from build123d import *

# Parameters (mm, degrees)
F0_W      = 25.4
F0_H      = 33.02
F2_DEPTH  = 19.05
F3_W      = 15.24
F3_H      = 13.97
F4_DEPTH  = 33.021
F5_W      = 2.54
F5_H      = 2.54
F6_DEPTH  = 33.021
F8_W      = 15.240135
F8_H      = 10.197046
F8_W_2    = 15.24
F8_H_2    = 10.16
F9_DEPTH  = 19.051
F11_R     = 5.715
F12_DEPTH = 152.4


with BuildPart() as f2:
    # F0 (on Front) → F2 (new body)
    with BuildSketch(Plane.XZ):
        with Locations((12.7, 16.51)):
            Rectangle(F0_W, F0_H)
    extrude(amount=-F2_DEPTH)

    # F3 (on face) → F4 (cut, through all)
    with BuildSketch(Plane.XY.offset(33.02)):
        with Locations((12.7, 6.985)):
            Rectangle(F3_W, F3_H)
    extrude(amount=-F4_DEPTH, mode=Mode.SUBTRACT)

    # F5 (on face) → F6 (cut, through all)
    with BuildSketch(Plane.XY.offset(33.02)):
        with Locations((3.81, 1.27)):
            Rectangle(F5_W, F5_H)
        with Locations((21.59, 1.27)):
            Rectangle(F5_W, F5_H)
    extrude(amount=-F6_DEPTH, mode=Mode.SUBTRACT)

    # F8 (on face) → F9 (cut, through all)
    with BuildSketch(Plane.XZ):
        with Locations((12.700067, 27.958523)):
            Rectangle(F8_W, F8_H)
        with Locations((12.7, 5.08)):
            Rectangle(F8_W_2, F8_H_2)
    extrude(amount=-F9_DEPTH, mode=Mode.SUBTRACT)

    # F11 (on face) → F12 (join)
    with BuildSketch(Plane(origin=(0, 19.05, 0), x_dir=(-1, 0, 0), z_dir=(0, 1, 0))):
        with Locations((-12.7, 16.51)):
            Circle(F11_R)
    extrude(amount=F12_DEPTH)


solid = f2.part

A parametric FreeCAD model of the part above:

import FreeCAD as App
import Part
import Sketcher
Q = App.Units.Quantity

doc = App.newDocument("Part")
body = doc.addObject("PartDesign::Body", "Body")

# Sketch on XZ plane
sketch1 = body.newObject("Sketcher::SketchObject", "Sketch")
sketch1.AttachmentSupport = (doc.getObject("XZ_Plane"), [""])
sketch1.MapMode = "FlatFace"
sketch1.addGeometry(Part.LineSegment(App.Vector(0, 33.02, 0), App.Vector(0, 0, 0)), False)
sketch1.addGeometry(Part.LineSegment(App.Vector(0, 0, 0), App.Vector(25.4, 0, 0)), False)
sketch1.addGeometry(Part.LineSegment(App.Vector(25.4, 0, 0), App.Vector(25.4, 33.02, 0)), False)
sketch1.addGeometry(Part.LineSegment(App.Vector(25.4, 33.02, 0), App.Vector(0, 33.02, 0)), False)
sketch1.addConstraint(Sketcher.Constraint("Coincident", 0, 2, 1, 1))
sketch1.addConstraint(Sketcher.Constraint("Coincident", 1, 2, 2, 1))
sketch1.addConstraint(Sketcher.Constraint("Coincident", 2, 2, 3, 1))
sketch1.addConstraint(Sketcher.Constraint("Coincident", 3, 2, 0, 1))
sketch1.addConstraint(Sketcher.Constraint("Vertical", 0))
sketch1.addConstraint(Sketcher.Constraint("Horizontal", 1))
sketch1.addConstraint(Sketcher.Constraint("Vertical", 2))
sketch1.addConstraint(Sketcher.Constraint("Horizontal", 3))
sketch1.addConstraint(Sketcher.Constraint("Coincident", 0, 2, -1, 1))
sketch1.addConstraint(Sketcher.Constraint("DistanceX", 1, 1, 1, 2, Q("1 in")))
sketch1.addConstraint(Sketcher.Constraint("DistanceY", 0, 2, 0, 1, Q("1.3 in")))
pad1 = body.newObject("PartDesign::Pad", "Pad")
pad1.Profile = sketch1
pad1.Length = Q("0.75 in")
pad1.Reversed = True

# Sketch on XY plane
sketch2 = body.newObject("Sketcher::SketchObject", "Sketch001")
sketch2.AttachmentSupport = (doc.getObject("XY_Plane"), [""])
sketch2.MapMode = "FlatFace"
sketch2.AttachmentOffset = App.Placement(App.Vector(0, 0, 1.3 * 25.4), App.Rotation())
sketch2.addGeometry(Part.LineSegment(App.Vector(5.08, 13.97, 0), App.Vector(5.08, 0, 0)), False)
sketch2.addGeometry(Part.LineSegment(App.Vector(5.08, 0, 0), App.Vector(20.32, 0, 0)), False)
sketch2.addGeometry(Part.LineSegment(App.Vector(20.32, 0, 0), App.Vector(20.32, 13.97, 0)), False)
sketch2.addGeometry(Part.LineSegment(App.Vector(20.32, 13.97, 0), App.Vector(5.08, 13.97, 0)), False)
sketch2.addConstraint(Sketcher.Constraint("Coincident", 0, 2, 1, 1))
sketch2.addConstraint(Sketcher.Constraint("Coincident", 1, 2, 2, 1))
sketch2.addConstraint(Sketcher.Constraint("Coincident", 2, 2, 3, 1))
sketch2.addConstraint(Sketcher.Constraint("Coincident", 3, 2, 0, 1))
sketch2.addConstraint(Sketcher.Constraint("Vertical", 0))
sketch2.addConstraint(Sketcher.Constraint("Horizontal", 1))
sketch2.addConstraint(Sketcher.Constraint("Vertical", 2))
sketch2.addConstraint(Sketcher.Constraint("Horizontal", 3))
sketch2.addConstraint(Sketcher.Constraint("PointOnObject", 0, 2, -1))
sketch2.addConstraint(Sketcher.Constraint("DistanceX", 1, 1, 1, 2, Q("0.6 in")))
sketch2.addConstraint(Sketcher.Constraint("DistanceY", 0, 2, 0, 1, Q("0.55 in")))
sketch2.addConstraint(Sketcher.Constraint("DistanceX", -1, 1, 0, 2, Q("0.2 in")))
pocket1 = body.newObject("PartDesign::Pocket", "Pocket")
pocket1.Profile = sketch2
pocket1.Type = "ThroughAll"

# Sketch on XY plane
sketch3 = body.newObject("Sketcher::SketchObject", "Sketch002")
sketch3.AttachmentSupport = (doc.getObject("XY_Plane"), [""])
sketch3.MapMode = "FlatFace"
sketch3.AttachmentOffset = App.Placement(App.Vector(0, 0, 1.3 * 25.4), App.Rotation())
sketch3.addGeometry(Part.LineSegment(App.Vector(2.54, 2.54, 0), App.Vector(2.54, 0, 0)), False)
sketch3.addGeometry(Part.LineSegment(App.Vector(2.54, 0, 0), App.Vector(5.08, 0, 0)), False)
sketch3.addGeometry(Part.LineSegment(App.Vector(5.08, 0, 0), App.Vector(5.08, 2.54, 0)), False)
sketch3.addGeometry(Part.LineSegment(App.Vector(5.08, 2.54, 0), App.Vector(2.54, 2.54, 0)), False)
sketch3.addGeometry(Part.LineSegment(App.Vector(20.32, 2.54, 0), App.Vector(20.32, 0, 0)), False)
sketch3.addGeometry(Part.LineSegment(App.Vector(20.32, 0, 0), App.Vector(22.86, 0, 0)), False)
sketch3.addGeometry(Part.LineSegment(App.Vector(22.86, 0, 0), App.Vector(22.86, 2.54, 0)), False)
sketch3.addGeometry(Part.LineSegment(App.Vector(22.86, 2.54, 0), App.Vector(20.32, 2.54, 0)), False)
sketch3.addConstraint(Sketcher.Constraint("Coincident", 0, 2, 1, 1))
sketch3.addConstraint(Sketcher.Constraint("Coincident", 1, 2, 2, 1))
sketch3.addConstraint(Sketcher.Constraint("Coincident", 2, 2, 3, 1))
sketch3.addConstraint(Sketcher.Constraint("Coincident", 3, 2, 0, 1))
sketch3.addConstraint(Sketcher.Constraint("Coincident", 4, 2, 5, 1))
sketch3.addConstraint(Sketcher.Constraint("Coincident", 5, 2, 6, 1))
sketch3.addConstraint(Sketcher.Constraint("Coincident", 6, 2, 7, 1))
sketch3.addConstraint(Sketcher.Constraint("Coincident", 7, 2, 4, 1))
sketch3.addConstraint(Sketcher.Constraint("Vertical", 0))
sketch3.addConstraint(Sketcher.Constraint("Horizontal", 1))
sketch3.addConstraint(Sketcher.Constraint("Vertical", 2))
sketch3.addConstraint(Sketcher.Constraint("Horizontal", 3))
sketch3.addConstraint(Sketcher.Constraint("Vertical", 4))
sketch3.addConstraint(Sketcher.Constraint("Horizontal", 5))
sketch3.addConstraint(Sketcher.Constraint("Vertical", 6))
sketch3.addConstraint(Sketcher.Constraint("Horizontal", 7))
sketch3.addConstraint(Sketcher.Constraint("PointOnObject", 0, 2, -1))
sketch3.addConstraint(Sketcher.Constraint("PointOnObject", 4, 2, -1))
sketch3.addConstraint(Sketcher.Constraint("Horizontal", 3, 2, 6, 2))
sketch3.addConstraint(Sketcher.Constraint("Equal", 3, 5))
sketch3.addConstraint(Sketcher.Constraint("Equal", 7, 0))
sketch3.addConstraint(Sketcher.Constraint("DistanceX", 1, 1, 1, 2, Q("0.1 in")))
sketch3.addConstraint(Sketcher.Constraint("DistanceX", -1, 1, 0, 2, Q("0.1 in")))
sketch3.addConstraint(Sketcher.Constraint("DistanceX", -1, 1, 4, 2, Q("0.8 in")))
pocket2 = body.newObject("PartDesign::Pocket", "Pocket001")
pocket2.Profile = sketch3
pocket2.Type = "ThroughAll"

# Sketch on XZ plane
sketch4 = body.newObject("Sketcher::SketchObject", "Sketch003")
sketch4.AttachmentSupport = (doc.getObject("XZ_Plane"), [""])
sketch4.MapMode = "FlatFace"
sketch4.addGeometry(Part.LineSegment(App.Vector(5.079999, 33.057046, 0), App.Vector(5.079999, 22.86, 0)), False)
sketch4.addGeometry(Part.LineSegment(App.Vector(5.079999, 22.86, 0), App.Vector(20.320135, 22.86, 0)), False)
sketch4.addGeometry(Part.LineSegment(App.Vector(20.320135, 22.86, 0), App.Vector(20.320135, 33.057046, 0)), False)
sketch4.addGeometry(Part.LineSegment(App.Vector(20.320135, 33.057046, 0), App.Vector(5.079999, 33.057046, 0)), False)
sketch4.addGeometry(Part.LineSegment(App.Vector(5.08, 10.16, 0), App.Vector(5.08, 0, 0)), False)
sketch4.addGeometry(Part.LineSegment(App.Vector(5.08, 0, 0), App.Vector(20.32, 0, 0)), False)
sketch4.addGeometry(Part.LineSegment(App.Vector(20.32, 0, 0), App.Vector(20.32, 10.16, 0)), False)
sketch4.addGeometry(Part.LineSegment(App.Vector(20.32, 10.16, 0), App.Vector(5.08, 10.16, 0)), False)
sketch4.addConstraint(Sketcher.Constraint("Coincident", 0, 2, 1, 1))
sketch4.addConstraint(Sketcher.Constraint("Coincident", 1, 2, 2, 1))
sketch4.addConstraint(Sketcher.Constraint("Coincident", 2, 2, 3, 1))
sketch4.addConstraint(Sketcher.Constraint("Coincident", 3, 2, 0, 1))
sketch4.addConstraint(Sketcher.Constraint("Coincident", 4, 2, 5, 1))
sketch4.addConstraint(Sketcher.Constraint("Coincident", 5, 2, 6, 1))
sketch4.addConstraint(Sketcher.Constraint("Coincident", 6, 2, 7, 1))
sketch4.addConstraint(Sketcher.Constraint("Coincident", 7, 2, 4, 1))
sketch4.addConstraint(Sketcher.Constraint("Vertical", 0))
sketch4.addConstraint(Sketcher.Constraint("Horizontal", 1))
sketch4.addConstraint(Sketcher.Constraint("Vertical", 2))
sketch4.addConstraint(Sketcher.Constraint("Horizontal", 3))
sketch4.addConstraint(Sketcher.Constraint("Vertical", 4))
sketch4.addConstraint(Sketcher.Constraint("Horizontal", 5))
sketch4.addConstraint(Sketcher.Constraint("Vertical", 6))
sketch4.addConstraint(Sketcher.Constraint("Horizontal", 7))
sketch4.addConstraint(Sketcher.Constraint("PointOnObject", 4, 2, -1))
sketch4.addConstraint(Sketcher.Constraint("Vertical", 3, 2, 4, 2))
sketch4.addConstraint(Sketcher.Constraint("DistanceX", 5, 1, 5, 2, Q("0.6 in")))
sketch4.addConstraint(Sketcher.Constraint("DistanceY", 4, 2, 4, 1, Q("0.4 in")))
sketch4.addConstraint(Sketcher.Constraint("DistanceX", -1, 1, 0, 2, Q("0.2 in")))
sketch4.addConstraint(Sketcher.Constraint("DistanceY", -1, 1, 0, 2, Q("0.9 in")))
sketch4.addConstraint(Sketcher.Constraint("DistanceX", 1, 1, 1, 2, 15.240135))
sketch4.addConstraint(Sketcher.Constraint("DistanceY", 0, 2, 0, 1, 10.197046))
pocket3 = body.newObject("PartDesign::Pocket", "Pocket002")
pocket3.Profile = sketch4
pocket3.Type = "ThroughAll"

# Sketch on XZ plane
sketch5 = body.newObject("Sketcher::SketchObject", "Sketch004")
sketch5.AttachmentSupport = (doc.getObject("XZ_Plane"), [""])
sketch5.MapMode = "FlatFace"
sketch5.AttachmentOffset = App.Placement(App.Vector(0, 0, -0.75 * 25.4), App.Rotation())
sketch5.addGeometry(Part.Circle(App.Vector(12.7, 16.51, 0), App.Vector(0, 0, 1), 5.715), False)
sketch5.addConstraint(Sketcher.Constraint("Diameter", 0, Q("0.45 in")))
sketch5.addConstraint(Sketcher.Constraint("DistanceX", -1, 1, 0, 3, Q("0.5 in")))
sketch5.addConstraint(Sketcher.Constraint("DistanceY", -1, 1, 0, 3, Q("0.65 in")))
pad2 = body.newObject("PartDesign::Pad", "Pad001")
pad2.Profile = sketch5
pad2.Length = Q("6 in")
pad2.Reversed = True

doc.recompute()
